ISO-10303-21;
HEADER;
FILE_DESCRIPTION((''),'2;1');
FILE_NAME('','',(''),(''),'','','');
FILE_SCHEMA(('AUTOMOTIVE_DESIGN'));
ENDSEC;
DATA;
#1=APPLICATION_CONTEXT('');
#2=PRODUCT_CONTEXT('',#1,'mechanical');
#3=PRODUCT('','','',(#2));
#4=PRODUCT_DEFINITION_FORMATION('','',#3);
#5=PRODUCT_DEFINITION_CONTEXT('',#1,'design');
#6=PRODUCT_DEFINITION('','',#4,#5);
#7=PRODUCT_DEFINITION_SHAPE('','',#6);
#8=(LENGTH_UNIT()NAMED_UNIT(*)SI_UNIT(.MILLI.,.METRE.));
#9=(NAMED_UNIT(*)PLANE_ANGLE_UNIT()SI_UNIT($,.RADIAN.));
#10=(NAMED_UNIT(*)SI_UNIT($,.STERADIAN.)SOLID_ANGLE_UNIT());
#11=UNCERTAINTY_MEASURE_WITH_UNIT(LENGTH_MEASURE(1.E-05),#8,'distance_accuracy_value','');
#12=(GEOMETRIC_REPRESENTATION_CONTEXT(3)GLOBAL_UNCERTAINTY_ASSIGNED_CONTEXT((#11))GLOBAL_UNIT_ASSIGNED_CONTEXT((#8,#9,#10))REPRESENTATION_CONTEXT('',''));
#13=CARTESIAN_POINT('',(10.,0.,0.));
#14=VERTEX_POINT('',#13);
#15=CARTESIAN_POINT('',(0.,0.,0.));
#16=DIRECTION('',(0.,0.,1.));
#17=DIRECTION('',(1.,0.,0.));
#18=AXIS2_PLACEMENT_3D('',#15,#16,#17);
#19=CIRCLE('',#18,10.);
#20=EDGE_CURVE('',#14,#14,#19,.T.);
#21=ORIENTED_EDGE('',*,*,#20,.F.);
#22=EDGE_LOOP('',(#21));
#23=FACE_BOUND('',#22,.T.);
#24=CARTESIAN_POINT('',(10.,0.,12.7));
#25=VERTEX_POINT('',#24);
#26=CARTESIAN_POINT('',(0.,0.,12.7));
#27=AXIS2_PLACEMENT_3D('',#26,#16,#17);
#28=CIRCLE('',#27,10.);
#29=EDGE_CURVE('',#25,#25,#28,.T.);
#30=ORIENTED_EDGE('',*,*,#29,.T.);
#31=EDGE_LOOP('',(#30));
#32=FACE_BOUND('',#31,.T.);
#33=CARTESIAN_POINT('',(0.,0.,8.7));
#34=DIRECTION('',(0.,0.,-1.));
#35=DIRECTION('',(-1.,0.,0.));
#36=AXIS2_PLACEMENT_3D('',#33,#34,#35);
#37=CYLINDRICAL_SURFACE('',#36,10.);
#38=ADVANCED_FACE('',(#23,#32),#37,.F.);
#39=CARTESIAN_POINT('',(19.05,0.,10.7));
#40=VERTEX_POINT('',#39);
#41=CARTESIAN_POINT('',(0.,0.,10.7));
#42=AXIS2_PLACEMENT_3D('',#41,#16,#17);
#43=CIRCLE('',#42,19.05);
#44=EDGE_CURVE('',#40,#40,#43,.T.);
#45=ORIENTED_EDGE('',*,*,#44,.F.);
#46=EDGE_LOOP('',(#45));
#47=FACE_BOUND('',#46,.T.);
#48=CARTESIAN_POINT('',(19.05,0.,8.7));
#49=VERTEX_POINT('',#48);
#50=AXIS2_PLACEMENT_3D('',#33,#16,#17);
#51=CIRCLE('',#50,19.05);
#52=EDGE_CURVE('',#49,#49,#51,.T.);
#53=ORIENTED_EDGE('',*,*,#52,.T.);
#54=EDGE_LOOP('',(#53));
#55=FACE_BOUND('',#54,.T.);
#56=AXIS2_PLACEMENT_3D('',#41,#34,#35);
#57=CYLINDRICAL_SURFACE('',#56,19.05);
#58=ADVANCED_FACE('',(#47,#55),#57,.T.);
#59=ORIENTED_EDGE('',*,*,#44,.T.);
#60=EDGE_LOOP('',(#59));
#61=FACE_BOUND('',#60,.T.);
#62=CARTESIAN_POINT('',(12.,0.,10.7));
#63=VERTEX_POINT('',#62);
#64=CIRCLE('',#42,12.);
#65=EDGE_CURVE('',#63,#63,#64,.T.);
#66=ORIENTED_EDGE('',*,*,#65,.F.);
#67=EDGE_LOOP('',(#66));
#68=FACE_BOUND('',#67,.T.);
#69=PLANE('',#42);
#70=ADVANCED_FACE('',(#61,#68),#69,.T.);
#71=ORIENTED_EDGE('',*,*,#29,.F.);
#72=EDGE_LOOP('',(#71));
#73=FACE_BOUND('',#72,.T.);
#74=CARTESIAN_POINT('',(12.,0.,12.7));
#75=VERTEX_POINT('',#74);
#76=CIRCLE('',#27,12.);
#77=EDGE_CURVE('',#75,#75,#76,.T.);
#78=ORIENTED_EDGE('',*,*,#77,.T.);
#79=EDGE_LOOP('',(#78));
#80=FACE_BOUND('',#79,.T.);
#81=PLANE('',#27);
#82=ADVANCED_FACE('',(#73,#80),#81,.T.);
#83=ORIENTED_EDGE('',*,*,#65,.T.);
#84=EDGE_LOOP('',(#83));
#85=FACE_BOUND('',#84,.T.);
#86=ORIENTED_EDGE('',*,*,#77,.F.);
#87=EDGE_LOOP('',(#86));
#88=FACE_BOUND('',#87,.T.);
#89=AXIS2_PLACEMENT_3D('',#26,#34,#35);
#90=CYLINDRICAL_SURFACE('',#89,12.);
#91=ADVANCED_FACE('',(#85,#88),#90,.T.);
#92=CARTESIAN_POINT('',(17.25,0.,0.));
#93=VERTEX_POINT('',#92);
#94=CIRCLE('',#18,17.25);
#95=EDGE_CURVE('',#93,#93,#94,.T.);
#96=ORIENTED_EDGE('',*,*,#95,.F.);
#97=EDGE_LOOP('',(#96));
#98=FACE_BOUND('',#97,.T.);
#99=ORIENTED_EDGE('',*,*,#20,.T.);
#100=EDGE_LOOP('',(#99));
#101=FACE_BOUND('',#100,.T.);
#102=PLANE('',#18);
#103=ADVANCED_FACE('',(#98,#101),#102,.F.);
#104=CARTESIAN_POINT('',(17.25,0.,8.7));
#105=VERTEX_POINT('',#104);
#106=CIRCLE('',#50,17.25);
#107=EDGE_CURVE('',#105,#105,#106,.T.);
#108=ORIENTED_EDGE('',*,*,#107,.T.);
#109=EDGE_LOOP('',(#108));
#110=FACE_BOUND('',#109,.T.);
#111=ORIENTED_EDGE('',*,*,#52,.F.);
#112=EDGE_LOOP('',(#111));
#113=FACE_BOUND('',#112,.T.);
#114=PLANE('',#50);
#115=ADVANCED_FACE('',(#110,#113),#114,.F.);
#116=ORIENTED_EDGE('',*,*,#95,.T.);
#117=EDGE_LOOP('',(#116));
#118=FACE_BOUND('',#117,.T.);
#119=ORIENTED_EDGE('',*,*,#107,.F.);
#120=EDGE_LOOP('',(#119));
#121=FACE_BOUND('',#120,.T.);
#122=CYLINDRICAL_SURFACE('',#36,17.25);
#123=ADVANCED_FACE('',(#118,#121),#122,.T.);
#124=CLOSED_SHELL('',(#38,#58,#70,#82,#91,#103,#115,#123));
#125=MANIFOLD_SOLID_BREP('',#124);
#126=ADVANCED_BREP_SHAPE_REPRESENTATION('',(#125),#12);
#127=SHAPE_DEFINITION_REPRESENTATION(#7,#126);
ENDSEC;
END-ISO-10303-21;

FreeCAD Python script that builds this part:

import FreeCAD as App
import Part
import Sketcher

doc = App.newDocument("Part")
body = doc.addObject("PartDesign::Body", "Body")

# Sketch on XY plane
sketch1 = body.newObject("Sketcher::SketchObject", "Sketch")
sketch1.AttachmentSupport = (doc.getObject("XY_Plane"), [""])
sketch1.MapMode = "FlatFace"
sketch1.addGeometry([
    Part.Circle(App.Vector(0, 0, 0), App.Vector(0, 0, 1), 17.25),
    Part.Circle(App.Vector(0, 0, 0), App.Vector(0, 0, 1), 10),
], False)
sketch1.addConstraint([
    Sketcher.Constraint("Coincident", 0, 3, -1, 1),
    Sketcher.Constraint("Coincident", 1, 3, -1, 1),
    Sketcher.Constraint("Diameter", 1, 20.0),
    Sketcher.Constraint("Diameter", 0, 34.5),
])
pad1 = body.newObject("PartDesign::Pad", "Pad")
pad1.Profile = sketch1
pad1.Length = 8.7

# Sketch on XY plane
sketch2 = body.newObject("Sketcher::SketchObject", "Sketch001")
sketch2.AttachmentSupport = (doc.getObject("XY_Plane"), [""])
sketch2.MapMode = "FlatFace"
sketch2.AttachmentOffset = App.Placement(App.Vector(0, 0, 8.7), App.Rotation())
sketch2.addGeometry([
    Part.Circle(App.Vector(0, 0, 0), App.Vector(0, 0, 1), 19.05),
    Part.Circle(App.Vector(0, 0, 0), App.Vector(0, 0, 1), 10),
], False)
sketch2.addConstraint([
    Sketcher.Constraint("Coincident", 0, 3, -1, 1),
    Sketcher.Constraint("Coincident", 1, 3, -1, 1),
    Sketcher.Constraint("Diameter", 1, 20.0),
    Sketcher.Constraint("Diameter", 0, 38.1),
])
pad2 = body.newObject("PartDesign::Pad", "Pad001")
pad2.Profile = sketch2
pad2.Length = 2

# Sketch on XY plane
sketch3 = body.newObject("Sketcher::SketchObject", "Sketch002")
sketch3.AttachmentSupport = (doc.getObject("XY_Plane"), [""])
sketch3.MapMode = "FlatFace"
sketch3.AttachmentOffset = App.Placement(App.Vector(0, 0, 10.7), App.Rotation())
sketch3.addGeometry([
    Part.Circle(App.Vector(0, 0, 0), App.Vector(0, 0, 1), 12),
    Part.Circle(App.Vector(0, 0, 0), App.Vector(0, 0, 1), 10),
], False)
sketch3.addConstraint([
    Sketcher.Constraint("Coincident", 0, 3, -1, 1),
    Sketcher.Constraint("Coincident", 1, 3, -1, 1),
    Sketcher.Constraint("Diameter", 0, 24.0),
    Sketcher.Constraint("Diameter", 1, 20.0),
])
pad3 = body.newObject("PartDesign::Pad", "Pad002")
pad3.Profile = sketch3
pad3.Length = 2

doc.recompute()
